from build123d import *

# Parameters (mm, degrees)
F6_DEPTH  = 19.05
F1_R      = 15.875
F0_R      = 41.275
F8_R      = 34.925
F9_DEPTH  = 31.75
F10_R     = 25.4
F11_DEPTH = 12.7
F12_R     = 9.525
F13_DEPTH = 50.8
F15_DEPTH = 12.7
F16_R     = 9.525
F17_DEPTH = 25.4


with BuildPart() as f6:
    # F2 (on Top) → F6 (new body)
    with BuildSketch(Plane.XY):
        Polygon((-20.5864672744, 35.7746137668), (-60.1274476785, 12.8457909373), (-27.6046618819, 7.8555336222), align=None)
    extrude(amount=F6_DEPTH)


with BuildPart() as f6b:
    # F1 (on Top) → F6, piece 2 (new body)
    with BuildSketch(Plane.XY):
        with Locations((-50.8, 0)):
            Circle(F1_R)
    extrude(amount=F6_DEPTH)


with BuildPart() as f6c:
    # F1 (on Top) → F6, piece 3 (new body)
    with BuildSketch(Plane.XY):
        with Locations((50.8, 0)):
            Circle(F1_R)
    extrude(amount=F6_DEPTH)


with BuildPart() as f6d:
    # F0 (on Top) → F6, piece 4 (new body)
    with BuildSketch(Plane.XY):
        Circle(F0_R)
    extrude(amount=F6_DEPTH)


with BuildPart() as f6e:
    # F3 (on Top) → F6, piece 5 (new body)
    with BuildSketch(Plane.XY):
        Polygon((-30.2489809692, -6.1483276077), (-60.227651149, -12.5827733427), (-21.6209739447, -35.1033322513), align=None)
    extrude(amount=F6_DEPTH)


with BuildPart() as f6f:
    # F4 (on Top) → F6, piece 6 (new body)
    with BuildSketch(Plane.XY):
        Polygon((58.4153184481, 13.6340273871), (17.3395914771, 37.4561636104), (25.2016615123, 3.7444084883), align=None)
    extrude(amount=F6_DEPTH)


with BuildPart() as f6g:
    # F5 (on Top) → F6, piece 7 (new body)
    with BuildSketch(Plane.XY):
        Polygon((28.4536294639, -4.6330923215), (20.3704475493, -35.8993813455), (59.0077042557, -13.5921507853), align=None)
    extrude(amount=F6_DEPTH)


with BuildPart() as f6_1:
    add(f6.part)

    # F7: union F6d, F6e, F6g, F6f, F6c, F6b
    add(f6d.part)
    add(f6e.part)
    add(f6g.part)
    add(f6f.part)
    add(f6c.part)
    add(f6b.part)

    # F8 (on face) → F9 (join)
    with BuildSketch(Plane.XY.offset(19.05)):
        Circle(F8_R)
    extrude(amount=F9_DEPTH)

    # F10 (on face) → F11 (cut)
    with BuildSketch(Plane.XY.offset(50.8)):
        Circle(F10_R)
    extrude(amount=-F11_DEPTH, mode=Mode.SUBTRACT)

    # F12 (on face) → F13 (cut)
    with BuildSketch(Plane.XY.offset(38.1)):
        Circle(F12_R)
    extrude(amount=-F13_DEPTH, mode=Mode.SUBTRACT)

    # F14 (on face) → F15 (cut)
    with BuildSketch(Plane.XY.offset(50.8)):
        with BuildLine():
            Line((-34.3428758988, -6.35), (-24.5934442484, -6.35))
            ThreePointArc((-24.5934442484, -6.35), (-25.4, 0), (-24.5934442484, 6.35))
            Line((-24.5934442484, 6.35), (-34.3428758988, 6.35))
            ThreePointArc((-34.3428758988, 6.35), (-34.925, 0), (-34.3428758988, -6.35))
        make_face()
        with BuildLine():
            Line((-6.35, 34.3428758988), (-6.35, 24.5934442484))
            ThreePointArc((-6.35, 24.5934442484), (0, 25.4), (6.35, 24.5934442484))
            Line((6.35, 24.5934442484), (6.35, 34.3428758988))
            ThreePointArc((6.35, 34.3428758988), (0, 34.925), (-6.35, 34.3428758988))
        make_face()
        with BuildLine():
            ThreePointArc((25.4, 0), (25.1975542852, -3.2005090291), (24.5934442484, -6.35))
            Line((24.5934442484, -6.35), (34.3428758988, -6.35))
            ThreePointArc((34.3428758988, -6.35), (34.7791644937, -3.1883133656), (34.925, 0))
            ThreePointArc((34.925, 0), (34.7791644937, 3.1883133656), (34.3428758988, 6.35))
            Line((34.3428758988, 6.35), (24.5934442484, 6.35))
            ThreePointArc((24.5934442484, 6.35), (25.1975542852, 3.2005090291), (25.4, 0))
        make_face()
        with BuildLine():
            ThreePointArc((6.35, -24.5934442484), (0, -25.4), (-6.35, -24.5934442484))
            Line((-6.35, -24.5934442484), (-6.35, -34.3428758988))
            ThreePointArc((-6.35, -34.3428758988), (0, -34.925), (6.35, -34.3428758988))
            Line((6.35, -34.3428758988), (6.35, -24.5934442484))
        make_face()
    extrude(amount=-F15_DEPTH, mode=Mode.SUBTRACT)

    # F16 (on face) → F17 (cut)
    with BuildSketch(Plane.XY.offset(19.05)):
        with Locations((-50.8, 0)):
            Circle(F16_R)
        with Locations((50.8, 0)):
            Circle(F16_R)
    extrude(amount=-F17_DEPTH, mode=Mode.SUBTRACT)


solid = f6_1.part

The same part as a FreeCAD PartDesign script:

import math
import FreeCAD as App
import Part
import Sketcher

V = App.Vector
Q = App.Units.Quantity


def add_polygon(sketch, points):
    """Adds a closed chain of lines whose ends are joined by coincident constraints."""
    first, n = sketch.GeometryCount, len(points)
    for a, b in zip(points, points[1:] + points[:1]):
        sketch.addGeometry(Part.LineSegment(App.Vector(*a, 0), App.Vector(*b, 0)), False)
    for i in range(n):
        sketch.addConstraint(Sketcher.Constraint("Coincident", first + i, 2, first + (i + 1) % n, 1))

doc = App.newDocument("Part")
body = doc.addObject("PartDesign::Body", "Body")

# Sketch on XY plane
sketch1 = body.newObject("Sketcher::SketchObject", "Sketch")
sketch1.AttachmentSupport = (doc.getObject("XY_Plane"), [""])
sketch1.MapMode = "FlatFace"
add_polygon(sketch1, [(-21, 36), (-60, 13), (-28, 8)])  # lines 0-2
sketch1.addConstraint([
    Sketcher.Constraint("Distance", 1, 32.903408),
    Sketcher.Constraint("DistanceY", -1, 1, 0, 2, 12.845791),
    Sketcher.Constraint("DistanceX", 1, 2, -1, 1, 27.604662),
    Sketcher.Constraint("DistanceY", 1, 2, 2, 2, 27.91908),
    Sketcher.Constraint("DistanceX", 0, 2, 2, 2, 39.54098),
    Sketcher.Constraint("Distance", 0, 45.707987),
])
pad1 = body.newObject("PartDesign::Pad", "Pad")
pad1.Profile = sketch1
pad1.Length = Q("0.75 in")
body2 = doc.addObject("PartDesign::Body", "Body001")

# Sketch on XY plane
sketch2 = body2.newObject("Sketcher::SketchObject", "Sketch001")
sketch2.AttachmentSupport = (doc.getObject("XY_Plane001"), [""])
sketch2.MapMode = "FlatFace"
sketch2.addGeometry(Part.Circle(V(-51, 0, 0), V(0, 0, 1), 16), False)
sketch2.addConstraint([
    Sketcher.Constraint("PointOnObject", 0, 3, -1),
    Sketcher.Constraint("Diameter", 0, Q("1.25 in")),
    Sketcher.Constraint("DistanceX", 0, 3, -1, 1, Q("2 in")),
])
pad2 = body2.newObject("PartDesign::Pad", "Pad001")
pad2.Profile = sketch2
pad2.Length = Q("0.75 in")
body3 = doc.addObject("PartDesign::Body", "Body002")

# Sketch on XY plane
sketch3 = body3.newObject("Sketcher::SketchObject", "Sketch002")
sketch3.AttachmentSupport = (doc.getObject("XY_Plane002"), [""])
sketch3.MapMode = "FlatFace"
sketch3.addGeometry(Part.Circle(V(51, 0, 0), V(0, 0, 1), 16), False)
sketch3.addConstraint([
    Sketcher.Constraint("PointOnObject", 0, 3, -1),
    Sketcher.Constraint("Diameter", 0, Q("1.25 in")),
    Sketcher.Constraint("DistanceX", -1, 1, 0, 3, Q("2 in")),
])
pad3 = body3.newObject("PartDesign::Pad", "Pad002")
pad3.Profile = sketch3
pad3.Length = Q("0.75 in")
body4 = doc.addObject("PartDesign::Body", "Body003")

# Sketch on XY plane
sketch4 = body4.newObject("Sketcher::SketchObject", "Sketch003")
sketch4.AttachmentSupport = (doc.getObject("XY_Plane003"), [""])
sketch4.MapMode = "FlatFace"
sketch4.addGeometry(Part.Circle(V(0, 0, 0), V(0, 0, 1), 41), False)
sketch4.addConstraint([
    Sketcher.Constraint("Coincident", 0, 3, -1, 1),
    Sketcher.Constraint("Diameter", 0, Q("3.25 in")),
])
pad4 = body4.newObject("PartDesign::Pad", "Pad003")
pad4.Profile = sketch4
pad4.Length = Q("0.75 in")
body5 = doc.addObject("PartDesign::Body", "Body004")

# Sketch on XY plane
sketch5 = body5.newObject("Sketcher::SketchObject", "Sketch004")
sketch5.AttachmentSupport = (doc.getObject("XY_Plane004"), [""])
sketch5.MapMode = "FlatFace"
add_polygon(sketch5, [(-30, -6), (-60, -13), (-22, -35)])  # lines 0-2
sketch5.addConstraint([
    Sketcher.Constraint("Distance", 0, 30.661421),
    Sketcher.Constraint("Distance", 1, 44.69509),
    Sketcher.Constraint("DistanceX", 0, 2, -1, 1, 60.227651),
    Sketcher.Constraint("DistanceX", 2, 2, -1, 1, 30.248981),
    Sketcher.Constraint("DistanceY", 1, 2, 0, 2, 22.520559),
    Sketcher.Constraint("DistanceY", 0, 2, -1, 1, 12.582773),
])
pad5 = body5.newObject("PartDesign::Pad", "Pad004")
pad5.Profile = sketch5
pad5.Length = Q("0.75 in")
body6 = doc.addObject("PartDesign::Body", "Body005")

# Sketch on XY plane
sketch6 = body6.newObject("Sketcher::SketchObject", "Sketch005")
sketch6.AttachmentSupport = (doc.getObject("XY_Plane005"), [""])
sketch6.MapMode = "FlatFace"
add_polygon(sketch6, [(58, 14), (17, 37), (25, 4)])  # lines 0-2
sketch6.addConstraint([
    Sketcher.Constraint("Distance", 0, 47.483782),
    Sketcher.Constraint("Distance", 1, 34.616392),
    Sketcher.Constraint("Distance", 2, 34.654748),
    Sketcher.Constraint("DistanceX", -1, 1, 0, 2, 17.339591),
    Sketcher.Constraint("DistanceX", -1, 1, 1, 2, 25.201662),
    Sketcher.Constraint("DistanceY", -1, 1, 1, 2, 3.744408),
])
pad6 = body6.newObject("PartDesign::Pad", "Pad005")
pad6.Profile = sketch6
pad6.Length = Q("0.75 in")
body7 = doc.addObject("PartDesign::Body", "Body006")

# Sketch on XY plane
sketch7 = body7.newObject("Sketcher::SketchObject", "Sketch006")
sketch7.AttachmentSupport = (doc.getObject("XY_Plane006"), [""])
sketch7.MapMode = "FlatFace"
add_polygon(sketch7, [(28, -5), (20, -36), (59, -14)])  # lines 0-2
sketch7.addConstraint([
    Sketcher.Constraint("Angle", 1, Q("30 deg")),
    Sketcher.Constraint("Distance", 0, 32.294251),
    Sketcher.Constraint("Distance", 1, 44.614461),
    Sketcher.Constraint("Distance", 2, 31.840481),
    Sketcher.Constraint("DistanceY", 0, 2, -1, 1, 35.899381),
    Sketcher.Constraint("DistanceX", -1, 1, 2, 2, 28.453629),
])
pad7 = body7.newObject("PartDesign::Pad", "Pad006")
pad7.Profile = sketch7
pad7.Length = Q("0.75 in")
doc.recompute()

boolean = body.newObject("PartDesign::Boolean", "Boolean")
boolean.Type = "Fuse"
boolean.addObjects([body4])
doc.recompute()

boolean2 = body.newObject("PartDesign::Boolean", "Boolean001")
boolean2.Type = "Fuse"
boolean2.addObjects([body5])
doc.recompute()

boolean3 = body.newObject("PartDesign::Boolean", "Boolean002")
boolean3.Type = "Fuse"
boolean3.addObjects([body7])
doc.recompute()

boolean4 = body.newObject("PartDesign::Boolean", "Boolean003")
boolean4.Type = "Fuse"
boolean4.addObjects([body6])
doc.recompute()

boolean5 = body.newObject("PartDesign::Boolean", "Boolean004")
boolean5.Type = "Fuse"
boolean5.addObjects([body3])
doc.recompute()

boolean6 = body.newObject("PartDesign::Boolean", "Boolean005")
boolean6.Type = "Fuse"
boolean6.addObjects([body2])

# Sketch on XY plane
sketch8 = body.newObject("Sketcher::SketchObject", "Sketch007")
sketch8.AttachmentSupport = (doc.getObject("XY_Plane"), [""])
sketch8.MapMode = "FlatFace"
sketch8.AttachmentOffset = App.Placement(V(0, 0, 0.75 * 25.4), App.Rotation())
sketch8.addGeometry(Part.Circle(V(0, 0, 0), V(0, 0, 1), 35), False)
sketch8.addConstraint([
    Sketcher.Constraint("Coincident", 0, 3, -1, 1),
    Sketcher.Constraint("Diameter", 0, Q("2.75 in")),
])
pad8 = body.newObject("PartDesign::Pad", "Pad007")
pad8.Profile = sketch8
pad8.Length = Q("1.25 in")

# Sketch on XY plane
sketch9 = body.newObject("Sketcher::SketchObject", "Sketch008")
sketch9.AttachmentSupport = (doc.getObject("XY_Plane"), [""])
sketch9.MapMode = "FlatFace"
sketch9.AttachmentOffset = App.Placement(V(0, 0, 2 * 25.4), App.Rotation())
sketch9.addGeometry(Part.Circle(V(0, 0, 0), V(0, 0, 1), 25), False)
sketch9.addConstraint([
    Sketcher.Constraint("Coincident", 0, 3, -1, 1),
    Sketcher.Constraint("Diameter", 0, Q("2 in")),
])
pocket1 = body.newObject("PartDesign::Pocket", "Pocket")
pocket1.Profile = sketch9
pocket1.Length = Q("0.5 in")

# Sketch on XY plane
sketch10 = body.newObject("Sketcher::SketchObject", "Sketch009")
sketch10.AttachmentSupport = (doc.getObject("XY_Plane"), [""])
sketch10.MapMode = "FlatFace"
sketch10.AttachmentOffset = App.Placement(V(0, 0, 1.5 * 25.4), App.Rotation())
sketch10.addGeometry(Part.Circle(V(0, 0, 0), V(0, 0, 1), 10), False)
sketch10.addConstraint([
    Sketcher.Constraint("Coincident", 0, 3, -1, 1),
    Sketcher.Constraint("Diameter", 0, Q("0.75 in")),
])
pocket2 = body.newObject("PartDesign::Pocket", "Pocket001")
pocket2.Profile = sketch10
pocket2.Length = Q("2 in")

# Sketch on XY plane
sketch11 = body.newObject("Sketcher::SketchObject", "Sketch010")
sketch11.AttachmentSupport = (doc.getObject("XY_Plane"), [""])
sketch11.MapMode = "FlatFace"
sketch11.AttachmentOffset = App.Placement(V(0, 0, 2 * 25.4), App.Rotation())
sketch11.addGeometry([
    Part.LineSegment(V(-34, -6, 0), V(-25, -6, 0)),  # 0
    Part.ArcOfCircle(Part.Circle(V(0, 0, 0), V(0, 0, 1), 25), math.radians(166), math.radians(194)),  # 1
    Part.LineSegment(V(-25, 6, 0), V(-34, 6, 0)),  # 2
    Part.ArcOfCircle(Part.Circle(V(0, 0, 0), V(0, 0, 1), 35), math.radians(170), math.radians(190)),  # 3
    Part.LineSegment(V(-6, 34, 0), V(-6, 25, 0)),  # 4
    Part.ArcOfCircle(Part.Circle(V(0, 0, 0), V(0, 0, 1), 25), math.radians(76), math.radians(104)),  # 5
    Part.LineSegment(V(6, 25, 0), V(6, 34, 0)),  # 6
    Part.ArcOfCircle(Part.Circle(V(0, 0, 0), V(0, 0, 1), 35), math.radians(80), math.radians(100)),  # 7
    Part.ArcOfCircle(Part.Circle(V(0, 0, 0), V(0, 0, 1), 25), math.radians(-14.48), math.radians(0)),  # 8
    Part.LineSegment(V(25, -6, 0), V(34, -6, 0)),  # 9
    Part.ArcOfCircle(Part.Circle(V(0, 0, 0), V(0, 0, 1), 35), math.radians(-10.48), math.radians(0)),  # 10
    Part.ArcOfCircle(Part.Circle(V(0, 0, 0), V(0, 0, 1), 35), math.radians(0), math.radians(10.48)),  # 11
    Part.LineSegment(V(34, 6, 0), V(25, 6, 0)),  # 12
    Part.ArcOfCircle(Part.Circle(V(0, 0, 0), V(0, 0, 1), 25), math.radians(0), math.radians(14.48)),  # 13
    Part.ArcOfCircle(Part.Circle(V(0, 0, 0), V(0, 0, 1), 25), math.radians(-104), math.radians(-76)),  # 14
    Part.LineSegment(V(-6, -25, 0), V(-6, -34, 0)),  # 15
    Part.ArcOfCircle(Part.Circle(V(0, 0, 0), V(0, 0, 1), 35), math.radians(-100), math.radians(-80)),  # 16
    Part.LineSegment(V(6, -34, 0), V(6, -25, 0)),  # 17
], False)
sketch11.addConstraint([
    Sketcher.Constraint("Coincident", 0, 2, 1, 2),
    Sketcher.Constraint("Coincident", 1, 1, 2, 1),
    Sketcher.Constraint("Coincident", 2, 2, 3, 1),
    Sketcher.Constraint("Coincident", 3, 2, 0, 1),
    Sketcher.Constraint("Coincident", 4, 2, 5, 2),
    Sketcher.Constraint("Coincident", 5, 1, 6, 1),
    Sketcher.Constraint("Coincident", 6, 2, 7, 1),
    Sketcher.Constraint("Coincident", 7, 2, 4, 1),
    Sketcher.Constraint("Coincident", 8, 1, 9, 1),
    Sketcher.Constraint("Coincident", 9, 2, 10, 1),
    Sketcher.Constraint("Tangent", 10, 2, 11, 1),
    Sketcher.Constraint("Coincident", 11, 2, 12, 1),
    Sketcher.Constraint("Coincident", 12, 2, 13, 2),
    Sketcher.Constraint("Tangent", 13, 1, 8, 2),
    Sketcher.Constraint("Coincident", 14, 1, 15, 1),
    Sketcher.Constraint("Coincident", 15, 2, 16, 1),
    Sketcher.Constraint("Coincident", 16, 2, 17, 1),
    Sketcher.Constraint("Coincident", 17, 2, 14, 2),
    Sketcher.Constraint("Horizontal", 0),
    Sketcher.Constraint("Horizontal", 2),
    Sketcher.Constraint("Vertical", 4),
    Sketcher.Constraint("Vertical", 6),
    Sketcher.Constraint("Horizontal", 9),
    Sketcher.Constraint("Horizontal", 12),
    Sketcher.Constraint("Vertical", 15),
    Sketcher.Constraint("Vertical", 17),
    Sketcher.Constraint("Coincident", 1, 3, -1, 1),
    Sketcher.Constraint("Coincident", 3, 3, -1, 1),
    Sketcher.Constraint("Coincident", 5, 3, -1, 1),
    Sketcher.Constraint("Coincident", 7, 3, -1, 1),
    Sketcher.Constraint("Coincident", 8, 3, -1, 1),
    Sketcher.Constraint("Coincident", 10, 3, -1, 1),
    Sketcher.Constraint("Coincident", 14, 3, -1, 1),
    Sketcher.Constraint("Coincident", 16, 3, -1, 1),
    Sketcher.Constraint("Equal", 1, 5),
    Sketcher.Constraint("Equal", 3, 7),
    Sketcher.Constraint("Equal", 5, 8),
    Sketcher.Constraint("Equal", 7, 10),
    Sketcher.Constraint("Equal", 10, 11),
    Sketcher.Constraint("Equal", 8, 13),
    Sketcher.Constraint("Equal", 13, 14),
    Sketcher.Constraint("Equal", 11, 16),
    Sketcher.Constraint("PointOnObject", 10, 2, -1),
    Sketcher.Constraint("PointOnObject", 13, 1, -1),
    Sketcher.Constraint("Horizontal", 4, 2, 5, 1),
    Sketcher.Constraint("Horizontal", 3, 2, 8, 1),
    Sketcher.Constraint("Horizontal", 2, 2, 11, 2),
    Sketcher.Constraint("Horizontal", 15, 2, 16, 2),
    Sketcher.Constraint("Vertical", 0, 2, 1, 1),
    Sketcher.Constraint("Vertical", 7, 2, 14, 1),
    Sketcher.Constraint("Equal", 12, 4),
    Sketcher.Constraint("Radius", 1, Q("1 in")),
    Sketcher.Constraint("Radius", 3, Q("1.375 in")),
    Sketcher.Constraint("DistanceY", 0, 2, 1, 1, Q("0.5 in")),
])
pocket3 = body.newObject("PartDesign::Pocket", "Pocket002")
pocket3.Profile = sketch11
pocket3.Length = Q("0.5 in")

# Sketch on XY plane
sketch12 = body.newObject("Sketcher::SketchObject", "Sketch011")
sketch12.AttachmentSupport = (doc.getObject("XY_Plane"), [""])
sketch12.MapMode = "FlatFace"
sketch12.AttachmentOffset = App.Placement(V(0, 0, 0.75 * 25.4), App.Rotation())
sketch12.addGeometry([
    Part.Circle(V(-51, 0, 0), V(0, 0, 1), 10),
    Part.Circle(V(51, 0, 0), V(0, 0, 1), 10),
], False)
sketch12.addConstraint([
    Sketcher.Constraint("Equal", 0, 1),
    Sketcher.Constraint("Symmetric", 0, 3, 1, 3, -1, 1),
    Sketcher.Constraint("PointOnObject", 0, 3, -1),
    Sketcher.Constraint("Diameter", 0, Q("0.75 in")),
    Sketcher.Constraint("DistanceX", 0, 3, -1, 1, Q("2 in")),
])
pocket4 = body.newObject("PartDesign::Pocket", "Pocket003")
pocket4.Profile = sketch12
pocket4.Length = Q("1 in")

doc.recompute()
